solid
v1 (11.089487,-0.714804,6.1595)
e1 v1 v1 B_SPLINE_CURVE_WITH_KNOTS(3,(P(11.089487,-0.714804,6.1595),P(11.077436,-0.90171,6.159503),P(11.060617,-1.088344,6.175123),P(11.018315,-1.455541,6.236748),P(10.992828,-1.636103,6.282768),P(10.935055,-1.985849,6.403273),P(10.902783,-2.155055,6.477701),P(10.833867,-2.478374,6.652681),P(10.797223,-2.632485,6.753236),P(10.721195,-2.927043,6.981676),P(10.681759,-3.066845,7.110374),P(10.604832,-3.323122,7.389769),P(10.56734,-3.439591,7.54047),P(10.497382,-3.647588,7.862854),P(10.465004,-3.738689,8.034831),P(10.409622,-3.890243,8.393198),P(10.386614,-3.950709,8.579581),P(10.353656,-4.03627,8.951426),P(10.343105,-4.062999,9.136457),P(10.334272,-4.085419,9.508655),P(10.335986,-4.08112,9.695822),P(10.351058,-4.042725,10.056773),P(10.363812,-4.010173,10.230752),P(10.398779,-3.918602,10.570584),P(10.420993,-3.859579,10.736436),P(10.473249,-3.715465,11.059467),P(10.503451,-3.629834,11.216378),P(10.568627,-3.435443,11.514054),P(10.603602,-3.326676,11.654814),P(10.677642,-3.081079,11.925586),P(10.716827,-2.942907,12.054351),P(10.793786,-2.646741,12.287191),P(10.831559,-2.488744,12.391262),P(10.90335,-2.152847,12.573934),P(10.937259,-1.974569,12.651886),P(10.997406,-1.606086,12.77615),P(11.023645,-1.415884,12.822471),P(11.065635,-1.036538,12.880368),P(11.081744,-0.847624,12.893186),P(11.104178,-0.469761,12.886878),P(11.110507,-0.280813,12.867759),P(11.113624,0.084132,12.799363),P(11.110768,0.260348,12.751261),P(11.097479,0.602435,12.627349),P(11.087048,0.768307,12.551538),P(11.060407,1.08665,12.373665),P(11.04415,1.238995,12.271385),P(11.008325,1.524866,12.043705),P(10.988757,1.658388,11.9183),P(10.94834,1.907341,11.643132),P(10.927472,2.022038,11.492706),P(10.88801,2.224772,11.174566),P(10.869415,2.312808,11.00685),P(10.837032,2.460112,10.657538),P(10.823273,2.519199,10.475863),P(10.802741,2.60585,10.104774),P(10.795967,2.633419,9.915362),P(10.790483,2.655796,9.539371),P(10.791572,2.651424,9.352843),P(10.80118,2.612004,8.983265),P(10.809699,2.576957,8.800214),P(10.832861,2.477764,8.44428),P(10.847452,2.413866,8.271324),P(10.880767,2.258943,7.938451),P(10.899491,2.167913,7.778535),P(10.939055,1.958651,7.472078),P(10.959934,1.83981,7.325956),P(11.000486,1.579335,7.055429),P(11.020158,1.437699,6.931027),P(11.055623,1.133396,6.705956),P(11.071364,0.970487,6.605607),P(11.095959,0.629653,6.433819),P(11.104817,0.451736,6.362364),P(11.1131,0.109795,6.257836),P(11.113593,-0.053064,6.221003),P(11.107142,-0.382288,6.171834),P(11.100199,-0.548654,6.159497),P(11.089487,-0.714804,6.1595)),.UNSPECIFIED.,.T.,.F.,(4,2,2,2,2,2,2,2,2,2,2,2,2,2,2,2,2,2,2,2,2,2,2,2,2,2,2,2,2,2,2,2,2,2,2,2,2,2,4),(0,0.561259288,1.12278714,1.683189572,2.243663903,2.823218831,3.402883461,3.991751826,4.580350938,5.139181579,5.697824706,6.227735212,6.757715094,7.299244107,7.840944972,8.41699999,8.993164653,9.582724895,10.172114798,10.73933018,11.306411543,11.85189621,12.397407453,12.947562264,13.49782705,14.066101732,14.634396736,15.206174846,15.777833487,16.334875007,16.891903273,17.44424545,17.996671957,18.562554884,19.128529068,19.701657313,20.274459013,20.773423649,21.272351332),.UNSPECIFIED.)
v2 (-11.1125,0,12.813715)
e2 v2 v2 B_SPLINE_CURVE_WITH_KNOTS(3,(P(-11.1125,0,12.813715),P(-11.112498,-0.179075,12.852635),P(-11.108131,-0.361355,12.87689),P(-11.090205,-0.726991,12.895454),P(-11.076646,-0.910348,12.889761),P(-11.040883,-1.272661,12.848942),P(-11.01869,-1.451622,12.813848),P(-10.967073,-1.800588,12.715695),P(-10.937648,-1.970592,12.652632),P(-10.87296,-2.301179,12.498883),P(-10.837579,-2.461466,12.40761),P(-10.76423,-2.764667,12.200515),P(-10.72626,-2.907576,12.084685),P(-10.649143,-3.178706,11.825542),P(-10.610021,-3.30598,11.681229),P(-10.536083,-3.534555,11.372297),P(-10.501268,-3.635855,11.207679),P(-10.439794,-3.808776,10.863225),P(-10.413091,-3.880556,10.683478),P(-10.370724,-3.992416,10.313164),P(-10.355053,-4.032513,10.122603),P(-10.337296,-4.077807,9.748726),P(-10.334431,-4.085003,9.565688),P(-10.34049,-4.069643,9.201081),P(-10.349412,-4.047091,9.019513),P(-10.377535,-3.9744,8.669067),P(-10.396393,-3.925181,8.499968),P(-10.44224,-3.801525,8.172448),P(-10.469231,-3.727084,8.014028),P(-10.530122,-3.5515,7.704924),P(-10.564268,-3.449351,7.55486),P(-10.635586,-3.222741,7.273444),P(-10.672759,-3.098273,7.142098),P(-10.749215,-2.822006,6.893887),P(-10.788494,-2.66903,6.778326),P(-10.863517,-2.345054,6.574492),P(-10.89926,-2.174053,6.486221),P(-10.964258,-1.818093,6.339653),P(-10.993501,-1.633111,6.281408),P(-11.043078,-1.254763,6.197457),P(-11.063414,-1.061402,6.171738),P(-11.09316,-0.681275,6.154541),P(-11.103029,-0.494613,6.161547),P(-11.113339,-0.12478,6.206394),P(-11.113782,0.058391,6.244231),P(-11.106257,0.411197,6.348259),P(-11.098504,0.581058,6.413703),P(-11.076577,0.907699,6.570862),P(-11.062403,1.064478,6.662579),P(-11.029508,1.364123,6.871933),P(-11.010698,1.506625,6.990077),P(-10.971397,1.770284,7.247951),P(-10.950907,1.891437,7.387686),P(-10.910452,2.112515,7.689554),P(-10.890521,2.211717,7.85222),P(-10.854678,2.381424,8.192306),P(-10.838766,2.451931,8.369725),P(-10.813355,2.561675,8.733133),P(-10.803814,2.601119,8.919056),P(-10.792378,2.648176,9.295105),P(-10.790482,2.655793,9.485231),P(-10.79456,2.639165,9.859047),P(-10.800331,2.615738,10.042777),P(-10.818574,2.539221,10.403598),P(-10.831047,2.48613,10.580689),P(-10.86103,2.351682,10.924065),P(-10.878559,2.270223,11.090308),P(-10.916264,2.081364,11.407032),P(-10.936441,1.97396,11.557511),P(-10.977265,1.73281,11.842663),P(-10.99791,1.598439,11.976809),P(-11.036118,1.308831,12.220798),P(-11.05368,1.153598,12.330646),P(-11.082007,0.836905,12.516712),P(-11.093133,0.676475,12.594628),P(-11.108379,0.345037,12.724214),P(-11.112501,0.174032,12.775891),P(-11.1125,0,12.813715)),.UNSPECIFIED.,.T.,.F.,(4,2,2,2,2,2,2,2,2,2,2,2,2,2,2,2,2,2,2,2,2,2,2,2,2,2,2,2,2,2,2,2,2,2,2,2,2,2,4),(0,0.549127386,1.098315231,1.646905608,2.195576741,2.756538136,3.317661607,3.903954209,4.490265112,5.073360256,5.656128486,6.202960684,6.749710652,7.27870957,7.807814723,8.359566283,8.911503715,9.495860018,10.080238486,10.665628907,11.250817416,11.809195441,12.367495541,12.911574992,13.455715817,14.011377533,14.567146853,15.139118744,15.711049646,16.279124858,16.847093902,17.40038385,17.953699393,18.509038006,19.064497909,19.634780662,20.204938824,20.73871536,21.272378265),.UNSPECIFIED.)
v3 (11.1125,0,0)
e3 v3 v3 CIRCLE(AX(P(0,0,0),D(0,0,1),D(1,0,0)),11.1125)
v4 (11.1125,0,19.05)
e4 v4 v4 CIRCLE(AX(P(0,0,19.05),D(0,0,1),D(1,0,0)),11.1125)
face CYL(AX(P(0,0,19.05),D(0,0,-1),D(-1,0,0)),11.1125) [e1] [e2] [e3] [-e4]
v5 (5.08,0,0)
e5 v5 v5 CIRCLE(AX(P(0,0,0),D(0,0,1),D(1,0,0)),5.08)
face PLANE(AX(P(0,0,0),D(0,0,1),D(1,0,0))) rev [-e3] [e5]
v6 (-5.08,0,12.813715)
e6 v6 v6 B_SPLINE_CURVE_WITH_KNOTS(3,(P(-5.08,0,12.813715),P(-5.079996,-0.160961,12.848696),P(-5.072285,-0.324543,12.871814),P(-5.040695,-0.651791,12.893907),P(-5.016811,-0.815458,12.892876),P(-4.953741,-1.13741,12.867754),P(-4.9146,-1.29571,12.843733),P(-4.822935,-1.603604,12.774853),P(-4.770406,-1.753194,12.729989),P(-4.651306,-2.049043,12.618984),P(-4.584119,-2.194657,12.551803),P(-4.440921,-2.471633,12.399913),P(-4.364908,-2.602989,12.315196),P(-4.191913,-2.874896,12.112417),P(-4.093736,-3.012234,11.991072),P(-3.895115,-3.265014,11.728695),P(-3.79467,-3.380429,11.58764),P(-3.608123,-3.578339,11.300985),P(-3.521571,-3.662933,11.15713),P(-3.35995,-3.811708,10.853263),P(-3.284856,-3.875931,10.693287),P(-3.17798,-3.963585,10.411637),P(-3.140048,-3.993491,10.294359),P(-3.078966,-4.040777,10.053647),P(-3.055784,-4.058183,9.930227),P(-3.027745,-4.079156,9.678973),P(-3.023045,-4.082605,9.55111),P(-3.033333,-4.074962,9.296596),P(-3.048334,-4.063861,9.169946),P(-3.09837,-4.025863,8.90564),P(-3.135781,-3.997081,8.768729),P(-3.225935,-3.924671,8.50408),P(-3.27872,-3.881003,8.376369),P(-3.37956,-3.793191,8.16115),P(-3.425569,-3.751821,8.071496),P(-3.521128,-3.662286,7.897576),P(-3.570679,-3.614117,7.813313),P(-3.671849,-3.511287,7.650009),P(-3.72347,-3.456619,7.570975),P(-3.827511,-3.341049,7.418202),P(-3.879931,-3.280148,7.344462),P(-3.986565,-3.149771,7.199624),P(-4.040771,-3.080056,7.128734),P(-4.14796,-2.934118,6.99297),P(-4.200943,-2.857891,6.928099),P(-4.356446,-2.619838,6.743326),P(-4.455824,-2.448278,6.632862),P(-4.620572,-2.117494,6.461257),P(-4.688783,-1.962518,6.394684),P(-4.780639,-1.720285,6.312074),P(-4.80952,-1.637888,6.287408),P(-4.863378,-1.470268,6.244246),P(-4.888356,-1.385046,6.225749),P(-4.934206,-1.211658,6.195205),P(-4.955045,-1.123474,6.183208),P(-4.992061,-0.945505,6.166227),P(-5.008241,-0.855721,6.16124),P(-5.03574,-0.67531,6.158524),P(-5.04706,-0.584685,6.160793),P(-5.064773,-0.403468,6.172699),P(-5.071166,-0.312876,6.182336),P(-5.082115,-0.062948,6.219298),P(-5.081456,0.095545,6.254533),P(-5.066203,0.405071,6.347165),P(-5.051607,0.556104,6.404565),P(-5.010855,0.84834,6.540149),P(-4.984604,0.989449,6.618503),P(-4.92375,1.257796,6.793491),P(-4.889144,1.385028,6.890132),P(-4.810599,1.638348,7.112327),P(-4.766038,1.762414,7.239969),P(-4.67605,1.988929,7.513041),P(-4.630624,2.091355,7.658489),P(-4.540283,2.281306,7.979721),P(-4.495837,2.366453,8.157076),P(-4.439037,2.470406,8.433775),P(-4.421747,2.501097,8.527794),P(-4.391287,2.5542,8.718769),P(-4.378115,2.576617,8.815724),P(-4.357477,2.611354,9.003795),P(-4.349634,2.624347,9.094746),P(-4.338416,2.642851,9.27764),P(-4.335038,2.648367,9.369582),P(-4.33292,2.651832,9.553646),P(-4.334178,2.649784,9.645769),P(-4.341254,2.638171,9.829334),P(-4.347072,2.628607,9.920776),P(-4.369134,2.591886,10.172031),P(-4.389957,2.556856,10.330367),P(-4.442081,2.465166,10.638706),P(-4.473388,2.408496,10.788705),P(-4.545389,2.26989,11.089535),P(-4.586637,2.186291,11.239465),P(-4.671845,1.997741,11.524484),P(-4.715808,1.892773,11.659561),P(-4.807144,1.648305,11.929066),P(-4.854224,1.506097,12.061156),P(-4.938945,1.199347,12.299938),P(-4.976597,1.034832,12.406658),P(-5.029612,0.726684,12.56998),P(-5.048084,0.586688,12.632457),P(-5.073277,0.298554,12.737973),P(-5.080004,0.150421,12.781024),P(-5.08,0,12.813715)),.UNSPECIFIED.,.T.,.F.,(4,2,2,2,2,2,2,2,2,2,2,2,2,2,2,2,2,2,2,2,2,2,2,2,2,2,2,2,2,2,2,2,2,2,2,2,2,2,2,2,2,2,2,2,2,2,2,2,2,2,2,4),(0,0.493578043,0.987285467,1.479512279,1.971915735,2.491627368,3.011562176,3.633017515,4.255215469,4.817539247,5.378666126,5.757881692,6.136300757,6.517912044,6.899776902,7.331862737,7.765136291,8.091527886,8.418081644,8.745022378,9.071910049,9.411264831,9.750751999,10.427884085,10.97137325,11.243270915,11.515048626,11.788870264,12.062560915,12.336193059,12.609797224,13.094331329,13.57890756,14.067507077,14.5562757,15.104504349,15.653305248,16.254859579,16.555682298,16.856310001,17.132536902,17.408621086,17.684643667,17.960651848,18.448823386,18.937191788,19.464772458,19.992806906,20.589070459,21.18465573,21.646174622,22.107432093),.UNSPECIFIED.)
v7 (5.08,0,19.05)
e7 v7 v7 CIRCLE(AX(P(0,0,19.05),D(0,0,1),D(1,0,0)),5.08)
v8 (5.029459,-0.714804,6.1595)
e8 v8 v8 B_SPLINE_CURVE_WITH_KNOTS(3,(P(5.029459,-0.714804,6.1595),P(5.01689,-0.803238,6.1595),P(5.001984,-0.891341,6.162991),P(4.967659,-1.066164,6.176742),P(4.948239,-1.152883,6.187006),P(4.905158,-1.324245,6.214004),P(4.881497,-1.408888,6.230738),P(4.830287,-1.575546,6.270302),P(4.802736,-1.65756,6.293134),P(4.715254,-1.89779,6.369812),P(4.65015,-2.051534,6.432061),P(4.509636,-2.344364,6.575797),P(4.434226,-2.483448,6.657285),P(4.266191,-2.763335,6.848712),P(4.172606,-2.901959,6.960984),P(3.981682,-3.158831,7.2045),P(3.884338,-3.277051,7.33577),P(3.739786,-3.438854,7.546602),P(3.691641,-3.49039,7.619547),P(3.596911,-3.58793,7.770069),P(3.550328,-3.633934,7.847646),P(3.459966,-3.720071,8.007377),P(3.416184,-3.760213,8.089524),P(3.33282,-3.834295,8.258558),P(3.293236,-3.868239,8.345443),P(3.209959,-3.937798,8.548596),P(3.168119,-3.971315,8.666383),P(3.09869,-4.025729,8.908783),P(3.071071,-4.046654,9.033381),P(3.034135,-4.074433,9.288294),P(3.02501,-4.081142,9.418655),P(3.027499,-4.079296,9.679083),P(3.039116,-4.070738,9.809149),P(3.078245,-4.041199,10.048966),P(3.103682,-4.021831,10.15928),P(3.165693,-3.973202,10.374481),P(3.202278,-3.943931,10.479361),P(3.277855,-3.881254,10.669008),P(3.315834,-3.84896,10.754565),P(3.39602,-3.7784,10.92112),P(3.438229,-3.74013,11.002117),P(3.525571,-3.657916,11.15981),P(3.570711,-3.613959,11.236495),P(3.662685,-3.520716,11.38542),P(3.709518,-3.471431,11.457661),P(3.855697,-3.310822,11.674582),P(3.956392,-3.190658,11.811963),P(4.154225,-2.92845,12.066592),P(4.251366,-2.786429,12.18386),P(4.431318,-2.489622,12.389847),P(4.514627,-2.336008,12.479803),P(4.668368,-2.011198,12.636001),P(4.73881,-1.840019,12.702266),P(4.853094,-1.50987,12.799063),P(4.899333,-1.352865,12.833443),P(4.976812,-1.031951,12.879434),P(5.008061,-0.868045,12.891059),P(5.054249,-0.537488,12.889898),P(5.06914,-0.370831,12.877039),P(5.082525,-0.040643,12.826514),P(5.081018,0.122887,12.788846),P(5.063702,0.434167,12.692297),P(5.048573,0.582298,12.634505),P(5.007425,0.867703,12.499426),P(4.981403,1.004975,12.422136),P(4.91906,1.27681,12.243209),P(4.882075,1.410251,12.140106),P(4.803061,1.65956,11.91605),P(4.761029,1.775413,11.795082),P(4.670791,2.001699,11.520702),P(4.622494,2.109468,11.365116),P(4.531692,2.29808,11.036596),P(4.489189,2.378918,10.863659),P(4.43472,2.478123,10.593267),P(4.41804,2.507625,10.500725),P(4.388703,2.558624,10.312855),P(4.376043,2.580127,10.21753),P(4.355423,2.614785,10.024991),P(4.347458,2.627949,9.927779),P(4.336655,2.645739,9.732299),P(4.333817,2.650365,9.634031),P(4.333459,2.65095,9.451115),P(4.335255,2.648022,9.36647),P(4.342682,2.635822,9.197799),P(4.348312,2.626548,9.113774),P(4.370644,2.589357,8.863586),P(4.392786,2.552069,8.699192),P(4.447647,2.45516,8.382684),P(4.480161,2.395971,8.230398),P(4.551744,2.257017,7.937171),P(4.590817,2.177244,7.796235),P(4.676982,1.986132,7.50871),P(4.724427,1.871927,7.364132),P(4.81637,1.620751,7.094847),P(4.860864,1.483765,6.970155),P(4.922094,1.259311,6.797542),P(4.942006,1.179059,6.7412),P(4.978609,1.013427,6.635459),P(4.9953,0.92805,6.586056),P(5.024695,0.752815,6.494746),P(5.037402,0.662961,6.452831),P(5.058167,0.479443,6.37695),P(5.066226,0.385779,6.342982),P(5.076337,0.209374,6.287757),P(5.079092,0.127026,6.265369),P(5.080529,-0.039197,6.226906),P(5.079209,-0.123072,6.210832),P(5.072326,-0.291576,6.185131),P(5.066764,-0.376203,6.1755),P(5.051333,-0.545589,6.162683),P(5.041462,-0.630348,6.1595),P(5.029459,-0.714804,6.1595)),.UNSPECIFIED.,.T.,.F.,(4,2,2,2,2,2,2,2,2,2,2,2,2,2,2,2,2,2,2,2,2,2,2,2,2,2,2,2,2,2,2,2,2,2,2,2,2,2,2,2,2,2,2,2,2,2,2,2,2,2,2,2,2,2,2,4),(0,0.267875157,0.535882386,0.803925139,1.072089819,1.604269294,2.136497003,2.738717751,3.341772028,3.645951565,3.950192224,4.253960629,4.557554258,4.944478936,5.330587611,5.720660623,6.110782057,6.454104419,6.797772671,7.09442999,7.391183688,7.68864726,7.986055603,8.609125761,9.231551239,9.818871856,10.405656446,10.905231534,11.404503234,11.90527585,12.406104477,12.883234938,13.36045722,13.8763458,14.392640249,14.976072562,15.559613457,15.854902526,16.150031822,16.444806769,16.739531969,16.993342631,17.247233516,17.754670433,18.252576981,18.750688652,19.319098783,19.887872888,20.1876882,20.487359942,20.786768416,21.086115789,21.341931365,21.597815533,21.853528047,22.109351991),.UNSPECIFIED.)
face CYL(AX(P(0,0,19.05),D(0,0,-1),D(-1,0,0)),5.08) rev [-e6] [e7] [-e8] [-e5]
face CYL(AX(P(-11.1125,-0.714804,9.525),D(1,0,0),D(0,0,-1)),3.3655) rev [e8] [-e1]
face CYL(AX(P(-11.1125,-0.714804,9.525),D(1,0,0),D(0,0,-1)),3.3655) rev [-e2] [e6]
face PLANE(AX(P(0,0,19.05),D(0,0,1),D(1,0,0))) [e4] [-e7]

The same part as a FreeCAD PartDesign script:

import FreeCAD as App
import Part
import Sketcher
from FreeCAD import Vector
Q = App.Units.Quantity

doc = App.newDocument("Part")
body = doc.addObject("PartDesign::Body", "Body")

sketch1 = doc.addObject("Sketcher::SketchObject", "Sketch")
body.addObject(sketch1)
sketch1.AttachmentSupport = (doc.XY_Plane, [""])
sketch1.MapMode = "FlatFace"
sketch1.addGeometry(Part.Circle(Vector(0, 0, 0), Vector(0, 0, 1), 11), False)
sketch1.addGeometry(Part.Circle(Vector(0, 0, 0), Vector(0, 0, 1), 5), False)
sketch1.addConstraint(Sketcher.Constraint("Coincident", 0, 3, -1, 1))
sketch1.addConstraint(Sketcher.Constraint("Coincident", 1, 3, -1, 1))
sketch1.addConstraint(Sketcher.Constraint("Diameter", 1, Q("0.4 in")))
sketch1.addConstraint(Sketcher.Constraint("Diameter", 0, Q("0.875 in")))
pad1 = doc.addObject("PartDesign::Pad", "Pad")
body.addObject(pad1)
pad1.Profile = sketch1
pad1.Length = Q("0.75 in")

sketch2 = doc.addObject("Sketcher::SketchObject", "Sketch001")
body.addObject(sketch2)
sketch2.AttachmentSupport = (doc.YZ_Plane, [""])
sketch2.MapMode = "FlatFace"
sketch2.addGeometry(Part.Circle(Vector(-0.7, 9.5, 0), Vector(0, 0, 1), 3.4), False)
sketch2.addConstraint(Sketcher.Constraint("Diameter", 0, Q("0.265 in")))
sketch2.addConstraint(Sketcher.Constraint("DistanceY", -1, 1, 0, 3, Q("0.375 in")))
sketch2.addConstraint(Sketcher.Constraint("DistanceX", 0, 3, -1, 1, Q("0.714804 mm")))
pocket1 = doc.addObject("PartDesign::Pocket", "Pocket")
body.addObject(pocket1)
pocket1.Profile = sketch2
pocket1.Type = "ThroughAll"
pocket1.Midplane = True

doc.recompute()
